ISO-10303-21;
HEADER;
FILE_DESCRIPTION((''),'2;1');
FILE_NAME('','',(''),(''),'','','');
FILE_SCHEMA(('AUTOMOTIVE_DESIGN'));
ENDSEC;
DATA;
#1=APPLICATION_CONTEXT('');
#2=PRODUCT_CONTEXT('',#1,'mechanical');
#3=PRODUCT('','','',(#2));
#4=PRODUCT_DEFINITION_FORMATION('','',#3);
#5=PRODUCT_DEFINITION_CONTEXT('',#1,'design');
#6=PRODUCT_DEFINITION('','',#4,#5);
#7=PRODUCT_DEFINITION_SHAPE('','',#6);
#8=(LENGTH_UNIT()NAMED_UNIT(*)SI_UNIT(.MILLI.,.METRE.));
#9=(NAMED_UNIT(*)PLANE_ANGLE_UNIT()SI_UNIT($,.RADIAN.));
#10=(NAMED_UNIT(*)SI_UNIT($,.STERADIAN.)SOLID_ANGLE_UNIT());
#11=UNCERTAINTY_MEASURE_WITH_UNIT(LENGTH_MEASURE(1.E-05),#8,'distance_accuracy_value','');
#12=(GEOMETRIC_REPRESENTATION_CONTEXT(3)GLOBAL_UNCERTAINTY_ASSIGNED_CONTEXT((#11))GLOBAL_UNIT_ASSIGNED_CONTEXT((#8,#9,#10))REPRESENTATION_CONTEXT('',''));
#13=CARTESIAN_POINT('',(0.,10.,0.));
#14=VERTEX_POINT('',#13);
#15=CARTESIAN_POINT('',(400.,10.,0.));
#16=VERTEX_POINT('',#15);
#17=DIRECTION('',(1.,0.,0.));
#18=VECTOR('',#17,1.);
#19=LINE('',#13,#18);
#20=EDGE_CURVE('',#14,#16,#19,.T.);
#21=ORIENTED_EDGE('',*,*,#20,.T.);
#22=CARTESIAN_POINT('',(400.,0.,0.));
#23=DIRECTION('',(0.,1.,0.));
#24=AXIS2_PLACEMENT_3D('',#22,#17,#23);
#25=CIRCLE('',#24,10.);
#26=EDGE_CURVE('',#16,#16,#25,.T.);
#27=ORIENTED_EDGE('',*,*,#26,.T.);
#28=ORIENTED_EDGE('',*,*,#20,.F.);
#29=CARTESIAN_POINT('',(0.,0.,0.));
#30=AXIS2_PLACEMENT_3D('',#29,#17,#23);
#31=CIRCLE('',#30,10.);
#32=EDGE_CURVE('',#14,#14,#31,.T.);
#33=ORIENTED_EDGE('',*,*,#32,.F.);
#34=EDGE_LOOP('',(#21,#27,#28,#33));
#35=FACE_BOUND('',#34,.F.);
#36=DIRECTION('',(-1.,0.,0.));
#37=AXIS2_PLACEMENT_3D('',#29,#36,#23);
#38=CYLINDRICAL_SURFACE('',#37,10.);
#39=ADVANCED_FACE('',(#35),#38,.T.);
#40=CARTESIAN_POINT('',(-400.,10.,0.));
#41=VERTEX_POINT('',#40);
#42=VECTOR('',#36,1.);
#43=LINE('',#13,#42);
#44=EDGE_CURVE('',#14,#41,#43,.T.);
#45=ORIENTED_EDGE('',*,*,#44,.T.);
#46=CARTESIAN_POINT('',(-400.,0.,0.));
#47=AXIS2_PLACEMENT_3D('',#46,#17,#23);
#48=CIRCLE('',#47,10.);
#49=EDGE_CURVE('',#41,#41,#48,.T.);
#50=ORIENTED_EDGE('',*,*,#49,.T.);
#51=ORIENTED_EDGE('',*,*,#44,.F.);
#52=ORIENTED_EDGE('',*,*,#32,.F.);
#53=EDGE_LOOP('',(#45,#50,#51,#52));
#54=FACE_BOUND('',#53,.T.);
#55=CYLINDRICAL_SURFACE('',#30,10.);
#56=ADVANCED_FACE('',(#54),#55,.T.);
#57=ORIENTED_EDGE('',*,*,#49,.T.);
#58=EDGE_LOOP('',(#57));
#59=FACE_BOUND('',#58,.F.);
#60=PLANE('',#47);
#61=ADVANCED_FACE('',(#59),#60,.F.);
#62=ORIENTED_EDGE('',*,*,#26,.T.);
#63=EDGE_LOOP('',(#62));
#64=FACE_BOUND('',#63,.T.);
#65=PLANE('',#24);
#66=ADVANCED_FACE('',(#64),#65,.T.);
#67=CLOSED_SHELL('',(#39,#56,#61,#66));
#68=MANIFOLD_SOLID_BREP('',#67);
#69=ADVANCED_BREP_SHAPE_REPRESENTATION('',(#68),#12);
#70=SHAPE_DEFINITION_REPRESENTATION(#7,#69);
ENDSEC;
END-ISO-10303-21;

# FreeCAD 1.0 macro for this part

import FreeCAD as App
import Part
import Sketcher
from FreeCAD import Vector
Q = App.Units.Quantity

doc = App.newDocument("Part")
body = doc.addObject("PartDesign::Body", "Body")

sketch1 = body.newObject("Sketcher::SketchObject", "Sketch")
sketch1.AttachmentSupport = (doc.getObject("YZ_Plane"), [""])
sketch1.MapMode = "FlatFace"
sketch1.addGeometry(Part.Circle(Vector(0, 0, 0), Vector(0, 0, 1), 10), False)
sketch1.addConstraint([
    Sketcher.Constraint("Coincident", 0, 3, -1, 1),
    Sketcher.Constraint("Diameter", 0, Q("20 mm")),
])
pad1 = body.newObject("PartDesign::Pad", "Pad")
pad1.Profile = sketch1
pad1.Length = 800
pad1.Midplane = True

doc.recompute()
